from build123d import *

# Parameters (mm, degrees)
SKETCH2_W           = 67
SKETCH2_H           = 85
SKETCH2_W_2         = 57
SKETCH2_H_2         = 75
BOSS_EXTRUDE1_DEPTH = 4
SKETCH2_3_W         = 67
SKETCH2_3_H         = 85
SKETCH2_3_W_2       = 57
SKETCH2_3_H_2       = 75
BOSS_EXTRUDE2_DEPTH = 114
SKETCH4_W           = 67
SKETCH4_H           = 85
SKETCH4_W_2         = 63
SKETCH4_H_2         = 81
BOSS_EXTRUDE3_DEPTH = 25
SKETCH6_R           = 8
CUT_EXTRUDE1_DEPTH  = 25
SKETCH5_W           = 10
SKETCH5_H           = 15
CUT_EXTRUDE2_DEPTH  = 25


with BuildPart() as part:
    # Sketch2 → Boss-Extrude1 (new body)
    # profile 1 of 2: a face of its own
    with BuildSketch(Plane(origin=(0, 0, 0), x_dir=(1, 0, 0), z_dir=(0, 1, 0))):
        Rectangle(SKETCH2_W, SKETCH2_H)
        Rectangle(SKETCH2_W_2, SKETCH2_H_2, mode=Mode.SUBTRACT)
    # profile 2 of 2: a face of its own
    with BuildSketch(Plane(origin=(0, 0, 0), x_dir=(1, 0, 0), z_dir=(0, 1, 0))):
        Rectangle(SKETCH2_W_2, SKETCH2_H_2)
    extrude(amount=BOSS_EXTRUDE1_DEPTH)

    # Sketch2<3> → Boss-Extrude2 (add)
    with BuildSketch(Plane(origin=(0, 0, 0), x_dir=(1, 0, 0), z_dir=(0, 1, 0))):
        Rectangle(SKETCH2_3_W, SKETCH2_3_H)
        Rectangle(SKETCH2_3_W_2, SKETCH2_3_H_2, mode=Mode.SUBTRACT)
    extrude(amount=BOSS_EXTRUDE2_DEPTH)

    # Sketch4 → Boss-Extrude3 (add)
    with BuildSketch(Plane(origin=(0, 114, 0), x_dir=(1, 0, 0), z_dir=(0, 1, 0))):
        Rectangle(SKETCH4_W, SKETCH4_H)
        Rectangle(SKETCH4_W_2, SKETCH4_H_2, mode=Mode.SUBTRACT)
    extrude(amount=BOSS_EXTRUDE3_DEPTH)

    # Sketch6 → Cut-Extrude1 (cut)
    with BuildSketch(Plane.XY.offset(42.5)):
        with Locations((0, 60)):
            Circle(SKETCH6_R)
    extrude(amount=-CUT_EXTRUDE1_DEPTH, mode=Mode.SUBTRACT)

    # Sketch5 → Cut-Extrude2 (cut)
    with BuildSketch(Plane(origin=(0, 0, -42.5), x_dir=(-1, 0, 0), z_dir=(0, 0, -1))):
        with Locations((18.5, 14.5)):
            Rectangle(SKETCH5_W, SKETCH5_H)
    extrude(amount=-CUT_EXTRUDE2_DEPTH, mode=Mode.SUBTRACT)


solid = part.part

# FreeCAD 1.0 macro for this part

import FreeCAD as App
import Part
import Sketcher
from FreeCAD import Vector
Q = App.Units.Quantity


def add_polygon(sketch, points):
    """Adds a closed chain of lines whose ends are joined by coincident constraints."""
    first, n = sketch.GeometryCount, len(points)
    for a, b in zip(points, points[1:] + points[:1]):
        sketch.addGeometry(Part.LineSegment(App.Vector(*a, 0), App.Vector(*b, 0)), False)
    for i in range(n):
        sketch.addConstraint(Sketcher.Constraint("Coincident", first + i, 2, first + (i + 1) % n, 1))

doc = App.newDocument("Part")
params = doc.addObject("Spreadsheet::Sheet", "Params")
for row, (alias, value) in enumerate([
    ("sketch1_width", "67 mm"),
    ("sketch1_height", "85 mm"),
    ("pad1_length", "4 mm"),
    ("sketch2_width", "67 mm"),
    ("sketch2_width2", "57 mm"),
    ("sketch2_height", "85 mm"),
    ("sketch2_height2", "75 mm"),
    ("pad2_length", "114 mm"),
    ("sketch3_width", "67 mm"),
    ("sketch3_width2", "63 mm"),
    ("sketch3_height", "85 mm"),
    ("sketch3_height2", "81 mm"),
    ("pad3_length", "25 mm"),
    ("sketch4_diameter", "16 mm"),
    ("pocket1_length", "25 mm"),
    ("sketch5_width", "10 mm"),
    ("sketch5_height", "15 mm"),
    ("pocket2_length", "25 mm"),
], start=1):
    params.set(f"A{row}", alias)
    params.set(f"B{row}", "=" + value)
    params.setAlias(f"B{row}", alias)

body = doc.addObject("PartDesign::Body", "Body")

sketch1 = body.newObject("Sketcher::SketchObject", "Sketch")
sketch1.AttachmentSupport = (doc.getObject("XZ_Plane"), [""])
sketch1.MapMode = "FlatFace"
add_polygon(sketch1, [(-34, -42), (-34, 42), (34, 42), (34, -42)])
sketch1.addConstraint(Sketcher.Constraint("Vertical", 0))
sketch1.addConstraint(Sketcher.Constraint("Horizontal", 1))
sketch1.addConstraint(Sketcher.Constraint("Vertical", 2))
sketch1.addConstraint(Sketcher.Constraint("Horizontal", 3))
sketch1.addConstraint(Sketcher.Constraint("Symmetric", 0, 2, 2, 2, -1, 1))
sketch1.addConstraint(Sketcher.Constraint("DistanceX", 1, 1, 1, 2, Q("67 mm")))
sketch1.addConstraint(Sketcher.Constraint("DistanceY", 0, 1, 0, 2, Q("85 mm")))
sketch1.setExpression("Constraints[9]", "Params.sketch1_width")
sketch1.setExpression("Constraints[10]", "Params.sketch1_height")
pad1 = body.newObject("PartDesign::Pad", "Pad")
pad1.Profile = sketch1
pad1.setExpression("Length", "Params.pad1_length")
pad1.Reversed = True

sketch2 = body.newObject("Sketcher::SketchObject", "Sketch001")
sketch2.AttachmentSupport = (doc.getObject("XZ_Plane"), [""])
sketch2.MapMode = "FlatFace"
add_polygon(sketch2, [(-34, -42), (-34, 42), (34, 42), (34, -42)])
add_polygon(sketch2, [(28, 38), (-28, 38), (-28, -38), (28, -38)])
sketch2.addConstraint(Sketcher.Constraint("Vertical", 0))
sketch2.addConstraint(Sketcher.Constraint("Horizontal", 1))
sketch2.addConstraint(Sketcher.Constraint("Vertical", 2))
sketch2.addConstraint(Sketcher.Constraint("Horizontal", 3))
sketch2.addConstraint(Sketcher.Constraint("Horizontal", 4))
sketch2.addConstraint(Sketcher.Constraint("Vertical", 5))
sketch2.addConstraint(Sketcher.Constraint("Horizontal", 6))
sketch2.addConstraint(Sketcher.Constraint("Vertical", 7))
sketch2.addConstraint(Sketcher.Constraint("Symmetric", 0, 2, 2, 2, -1, 1))
sketch2.addConstraint(Sketcher.Constraint("Symmetric", 4, 2, 6, 2, -1, 1))
sketch2.addConstraint(Sketcher.Constraint("DistanceX", 1, 1, 1, 2, Q("67 mm")))
sketch2.addConstraint(Sketcher.Constraint("DistanceX", 4, 2, 4, 1, Q("57 mm")))
sketch2.addConstraint(Sketcher.Constraint("DistanceY", 0, 1, 0, 2, Q("85 mm")))
sketch2.addConstraint(Sketcher.Constraint("DistanceY", 5, 2, 5, 1, Q("75 mm")))
sketch2.setExpression("Constraints[18]", "Params.sketch2_width")
sketch2.setExpression("Constraints[19]", "Params.sketch2_width2")
sketch2.setExpression("Constraints[20]", "Params.sketch2_height")
sketch2.setExpression("Constraints[21]", "Params.sketch2_height2")
pad2 = body.newObject("PartDesign::Pad", "Pad001")
pad2.Profile = sketch2
pad2.setExpression("Length", "Params.pad2_length")
pad2.Reversed = True

sketch3 = body.newObject("Sketcher::SketchObject", "Sketch002")
sketch3.AttachmentSupport = (doc.getObject("XZ_Plane"), [""])
sketch3.MapMode = "FlatFace"
sketch3.AttachmentOffset = App.Placement(Vector(0, 0, -114), App.Rotation())
add_polygon(sketch3, [(-34, -42), (-34, 42), (34, 42), (34, -42)])
add_polygon(sketch3, [(32, 40), (-32, 40), (-32, -40), (32, -40)])
sketch3.addConstraint(Sketcher.Constraint("Vertical", 0))
sketch3.addConstraint(Sketcher.Constraint("Horizontal", 1))
sketch3.addConstraint(Sketcher.Constraint("Vertical", 2))
sketch3.addConstraint(Sketcher.Constraint("Horizontal", 3))
sketch3.addConstraint(Sketcher.Constraint("Horizontal", 4))
sketch3.addConstraint(Sketcher.Constraint("Vertical", 5))
sketch3.addConstraint(Sketcher.Constraint("Horizontal", 6))
sketch3.addConstraint(Sketcher.Constraint("Vertical", 7))
sketch3.addConstraint(Sketcher.Constraint("Symmetric", 0, 2, 2, 2, -1, 1))
sketch3.addConstraint(Sketcher.Constraint("Symmetric", 4, 2, 6, 2, -1, 1))
sketch3.addConstraint(Sketcher.Constraint("DistanceX", 1, 1, 1, 2, Q("67 mm")))
sketch3.addConstraint(Sketcher.Constraint("DistanceX", 4, 2, 4, 1, Q("63 mm")))
sketch3.addConstraint(Sketcher.Constraint("DistanceY", 0, 1, 0, 2, Q("85 mm")))
sketch3.addConstraint(Sketcher.Constraint("DistanceY", 5, 2, 5, 1, Q("81 mm")))
sketch3.setExpression("Constraints[18]", "Params.sketch3_width")
sketch3.setExpression("Constraints[19]", "Params.sketch3_width2")
sketch3.setExpression("Constraints[20]", "Params.sketch3_height")
sketch3.setExpression("Constraints[21]", "Params.sketch3_height2")
pad3 = body.newObject("PartDesign::Pad", "Pad002")
pad3.Profile = sketch3
pad3.setExpression("Length", "Params.pad3_length")
pad3.Reversed = True

sketch4 = body.newObject("Sketcher::SketchObject", "Sketch003")
sketch4.AttachmentSupport = (doc.getObject("XY_Plane"), [""])
sketch4.MapMode = "FlatFace"
sketch4.AttachmentOffset = App.Placement(Vector(0, 0, 42.5), App.Rotation())
sketch4.addGeometry(Part.Circle(Vector(0, 60, 0), Vector(0, 0, 1), 8), False)
sketch4.addConstraint(Sketcher.Constraint("PointOnObject", 0, 3, -2))
sketch4.addConstraint(Sketcher.Constraint("Diameter", 0, Q("16 mm")))
sketch4.addConstraint(Sketcher.Constraint("DistanceY", -1, 1, 0, 3, Q("60 mm")))
sketch4.setExpression("Constraints[1]", "Params.sketch4_diameter")
pocket1 = body.newObject("PartDesign::Pocket", "Pocket")
pocket1.Profile = sketch4
pocket1.setExpression("Length", "Params.pocket1_length")

sketch5 = body.newObject("Sketcher::SketchObject", "Sketch004")
sketch5.AttachmentSupport = (doc.getObject("XY_Plane"), [""])
sketch5.MapMode = "FlatFace"
sketch5.AttachmentOffset = App.Placement(Vector(0, 0, -42.5), App.Rotation())
add_polygon(sketch5, [(-14, 22), (-14, 7), (-24, 7), (-24, 22)])
sketch5.addConstraint(Sketcher.Constraint("Vertical", 0))
sketch5.addConstraint(Sketcher.Constraint("Horizontal", 1))
sketch5.addConstraint(Sketcher.Constraint("Vertical", 2))
sketch5.addConstraint(Sketcher.Constraint("Horizontal", 3))
sketch5.addConstraint(Sketcher.Constraint("DistanceX", 1, 2, 1, 1, Q("10 mm")))
sketch5.addConstraint(Sketcher.Constraint("DistanceY", 0, 2, 0, 1, Q("15 mm")))
sketch5.addConstraint(Sketcher.Constraint("DistanceY", -1, 1, 0, 2, Q("7 mm")))
sketch5.addConstraint(Sketcher.Constraint("DistanceX", 0, 2, -1, 1, Q("13.5 mm")))
sketch5.setExpression("Constraints[8]", "Params.sketch5_width")
sketch5.setExpression("Constraints[9]", "Params.sketch5_height")
pocket2 = body.newObject("PartDesign::Pocket", "Pocket001")
pocket2.Profile = sketch5
pocket2.setExpression("Length", "Params.pocket2_length")
pocket2.Reversed = True

doc.recompute()
